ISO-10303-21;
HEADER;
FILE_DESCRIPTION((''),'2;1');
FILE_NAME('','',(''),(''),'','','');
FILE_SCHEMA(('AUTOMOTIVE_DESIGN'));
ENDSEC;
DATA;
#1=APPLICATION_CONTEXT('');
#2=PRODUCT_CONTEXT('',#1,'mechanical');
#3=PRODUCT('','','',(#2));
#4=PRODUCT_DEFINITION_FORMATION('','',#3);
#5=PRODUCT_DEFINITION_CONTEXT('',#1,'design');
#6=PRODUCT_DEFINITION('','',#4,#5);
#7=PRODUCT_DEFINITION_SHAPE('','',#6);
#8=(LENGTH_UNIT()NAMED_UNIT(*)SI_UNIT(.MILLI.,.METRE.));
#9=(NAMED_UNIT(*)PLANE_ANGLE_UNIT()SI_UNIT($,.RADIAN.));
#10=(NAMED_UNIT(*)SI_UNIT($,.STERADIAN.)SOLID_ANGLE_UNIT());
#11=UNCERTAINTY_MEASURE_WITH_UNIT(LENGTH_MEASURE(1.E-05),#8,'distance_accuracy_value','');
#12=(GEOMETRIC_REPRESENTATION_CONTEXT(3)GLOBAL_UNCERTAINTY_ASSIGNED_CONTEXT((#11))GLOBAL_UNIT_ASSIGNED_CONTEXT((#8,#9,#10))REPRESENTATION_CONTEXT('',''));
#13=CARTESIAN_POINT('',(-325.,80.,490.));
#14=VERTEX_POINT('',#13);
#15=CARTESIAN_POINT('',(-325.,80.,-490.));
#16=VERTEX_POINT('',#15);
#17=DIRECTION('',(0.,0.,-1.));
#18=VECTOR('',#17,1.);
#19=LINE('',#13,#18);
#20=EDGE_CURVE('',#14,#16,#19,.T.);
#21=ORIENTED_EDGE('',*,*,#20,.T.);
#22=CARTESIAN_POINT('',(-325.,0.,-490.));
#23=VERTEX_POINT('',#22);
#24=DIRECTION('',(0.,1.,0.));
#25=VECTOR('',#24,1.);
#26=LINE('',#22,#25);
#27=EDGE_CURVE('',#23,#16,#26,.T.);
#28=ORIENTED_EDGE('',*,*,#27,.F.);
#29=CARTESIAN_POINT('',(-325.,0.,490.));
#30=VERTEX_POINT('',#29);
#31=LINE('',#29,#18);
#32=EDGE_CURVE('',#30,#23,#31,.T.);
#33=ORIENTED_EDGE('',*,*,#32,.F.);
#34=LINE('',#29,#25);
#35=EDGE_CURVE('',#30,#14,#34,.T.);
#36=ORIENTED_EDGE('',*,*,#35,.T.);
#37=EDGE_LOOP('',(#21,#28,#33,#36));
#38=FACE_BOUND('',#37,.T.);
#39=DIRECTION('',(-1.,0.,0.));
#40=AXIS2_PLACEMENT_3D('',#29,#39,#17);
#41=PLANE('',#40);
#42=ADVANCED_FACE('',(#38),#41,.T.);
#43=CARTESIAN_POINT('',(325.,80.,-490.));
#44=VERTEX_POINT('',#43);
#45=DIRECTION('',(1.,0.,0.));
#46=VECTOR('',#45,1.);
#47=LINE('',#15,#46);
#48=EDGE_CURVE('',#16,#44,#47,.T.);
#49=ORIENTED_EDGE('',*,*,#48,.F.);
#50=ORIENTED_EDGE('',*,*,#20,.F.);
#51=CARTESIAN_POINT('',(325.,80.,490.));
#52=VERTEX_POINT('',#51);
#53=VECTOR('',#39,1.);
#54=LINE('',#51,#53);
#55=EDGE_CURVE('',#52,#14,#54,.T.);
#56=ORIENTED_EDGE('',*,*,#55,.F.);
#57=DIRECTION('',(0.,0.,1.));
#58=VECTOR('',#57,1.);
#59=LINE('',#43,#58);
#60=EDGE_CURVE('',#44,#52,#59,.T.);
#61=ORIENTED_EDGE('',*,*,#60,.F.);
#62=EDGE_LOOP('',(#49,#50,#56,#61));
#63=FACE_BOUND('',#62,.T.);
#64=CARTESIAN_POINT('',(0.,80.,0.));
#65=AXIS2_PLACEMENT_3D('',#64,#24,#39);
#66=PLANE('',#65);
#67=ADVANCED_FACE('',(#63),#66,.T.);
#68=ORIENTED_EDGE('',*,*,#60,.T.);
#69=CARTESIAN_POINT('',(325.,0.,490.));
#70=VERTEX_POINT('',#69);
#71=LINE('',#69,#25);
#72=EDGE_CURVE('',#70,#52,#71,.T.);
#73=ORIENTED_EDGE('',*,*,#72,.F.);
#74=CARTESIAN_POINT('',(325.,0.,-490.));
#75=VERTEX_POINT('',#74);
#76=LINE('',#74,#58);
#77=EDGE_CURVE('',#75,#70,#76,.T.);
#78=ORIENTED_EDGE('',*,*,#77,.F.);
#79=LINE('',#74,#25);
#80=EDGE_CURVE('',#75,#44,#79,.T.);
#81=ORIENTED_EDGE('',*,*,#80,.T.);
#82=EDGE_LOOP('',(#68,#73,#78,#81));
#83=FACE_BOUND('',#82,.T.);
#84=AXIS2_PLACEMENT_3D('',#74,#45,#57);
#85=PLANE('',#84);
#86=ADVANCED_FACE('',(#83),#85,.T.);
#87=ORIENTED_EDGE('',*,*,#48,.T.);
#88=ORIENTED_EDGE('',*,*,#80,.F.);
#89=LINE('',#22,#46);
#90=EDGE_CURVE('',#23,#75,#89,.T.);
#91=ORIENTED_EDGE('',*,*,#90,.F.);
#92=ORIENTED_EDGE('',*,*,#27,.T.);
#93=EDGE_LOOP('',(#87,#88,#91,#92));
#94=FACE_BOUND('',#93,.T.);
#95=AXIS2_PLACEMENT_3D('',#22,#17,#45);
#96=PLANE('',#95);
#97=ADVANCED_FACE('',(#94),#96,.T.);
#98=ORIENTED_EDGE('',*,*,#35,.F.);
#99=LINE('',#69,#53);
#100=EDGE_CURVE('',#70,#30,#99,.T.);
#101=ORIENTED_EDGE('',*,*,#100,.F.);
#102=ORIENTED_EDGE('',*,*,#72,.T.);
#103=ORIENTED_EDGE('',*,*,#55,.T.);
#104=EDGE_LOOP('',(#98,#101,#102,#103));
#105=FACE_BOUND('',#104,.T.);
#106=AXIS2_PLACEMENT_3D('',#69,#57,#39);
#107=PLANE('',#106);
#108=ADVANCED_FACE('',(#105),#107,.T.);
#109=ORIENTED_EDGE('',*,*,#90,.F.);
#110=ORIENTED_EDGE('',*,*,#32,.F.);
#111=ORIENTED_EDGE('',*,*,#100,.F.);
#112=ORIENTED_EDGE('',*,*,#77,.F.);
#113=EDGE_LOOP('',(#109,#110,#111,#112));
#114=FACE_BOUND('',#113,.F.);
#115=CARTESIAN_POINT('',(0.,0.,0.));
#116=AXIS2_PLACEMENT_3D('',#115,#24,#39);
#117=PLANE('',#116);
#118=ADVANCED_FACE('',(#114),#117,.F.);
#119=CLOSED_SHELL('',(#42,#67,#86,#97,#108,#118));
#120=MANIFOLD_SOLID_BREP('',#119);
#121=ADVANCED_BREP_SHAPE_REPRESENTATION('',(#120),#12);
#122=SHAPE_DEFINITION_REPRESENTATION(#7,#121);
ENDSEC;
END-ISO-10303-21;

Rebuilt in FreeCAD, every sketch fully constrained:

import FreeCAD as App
import Part
import Sketcher


def add_polygon(sketch, points):
    """Adds a closed chain of lines whose ends are joined by coincident constraints."""
    first, n = sketch.GeometryCount, len(points)
    for a, b in zip(points, points[1:] + points[:1]):
        sketch.addGeometry(Part.LineSegment(App.Vector(*a, 0), App.Vector(*b, 0)), False)
    for i in range(n):
        sketch.addConstraint(Sketcher.Constraint("Coincident", first + i, 2, first + (i + 1) % n, 1))

doc = App.newDocument("Part")
body = doc.addObject("PartDesign::Body", "Body")

# Sketch on XZ plane
sketch1 = doc.addObject("Sketcher::SketchObject", "Sketch")
body.addObject(sketch1)
sketch1.AttachmentSupport = (doc.XZ_Plane, [""])
sketch1.MapMode = "FlatFace"
add_polygon(sketch1, [(325, -490), (-325, -490), (-325, 490), (325, 490)])  # lines 0-3
sketch1.addConstraint([
    Sketcher.Constraint("Horizontal", 0),
    Sketcher.Constraint("Vertical", 1),
    Sketcher.Constraint("Horizontal", 2),
    Sketcher.Constraint("Vertical", 3),
    Sketcher.Constraint("Symmetric", 0, 2, 2, 2, -1, 1),
    Sketcher.Constraint("DistanceX", 0, 2, 0, 1, 650.0),
    Sketcher.Constraint("DistanceY", 1, 1, 1, 2, 980.0),
])
pad1 = doc.addObject("PartDesign::Pad", "Pad")
body.addObject(pad1)
pad1.Profile = sketch1
pad1.Length = 80
pad1.Reversed = True

doc.recompute()
